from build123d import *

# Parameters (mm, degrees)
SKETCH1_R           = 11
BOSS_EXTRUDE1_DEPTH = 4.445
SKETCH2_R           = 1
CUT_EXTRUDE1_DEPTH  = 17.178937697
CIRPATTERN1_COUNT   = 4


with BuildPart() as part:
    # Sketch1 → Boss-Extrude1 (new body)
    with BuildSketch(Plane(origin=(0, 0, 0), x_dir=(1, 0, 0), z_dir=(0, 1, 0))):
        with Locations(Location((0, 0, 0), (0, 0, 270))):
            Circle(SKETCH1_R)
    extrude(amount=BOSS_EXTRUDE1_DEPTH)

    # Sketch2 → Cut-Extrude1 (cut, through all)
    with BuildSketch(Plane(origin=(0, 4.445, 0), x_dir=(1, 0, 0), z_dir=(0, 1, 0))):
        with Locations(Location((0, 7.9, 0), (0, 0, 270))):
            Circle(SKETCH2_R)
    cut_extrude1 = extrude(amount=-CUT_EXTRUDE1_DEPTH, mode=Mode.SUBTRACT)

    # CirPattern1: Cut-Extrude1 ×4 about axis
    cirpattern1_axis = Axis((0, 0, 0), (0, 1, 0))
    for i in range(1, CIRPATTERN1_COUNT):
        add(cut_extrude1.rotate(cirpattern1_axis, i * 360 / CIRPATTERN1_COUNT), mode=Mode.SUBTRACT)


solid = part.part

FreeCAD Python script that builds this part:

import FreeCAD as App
import Part
import Sketcher
from FreeCAD import Vector

doc = App.newDocument("Part")
body = doc.addObject("PartDesign::Body", "Body")

# Sketch on XZ plane
sketch1 = body.newObject("Sketcher::SketchObject", "Sketch")
sketch1.AttachmentSupport = (doc.getObject("XZ_Plane"), [""])
sketch1.MapMode = "FlatFace"
sketch1.addGeometry(Part.Circle(Vector(0, 0, 0), Vector(0, 0, 1), 11), False)
sketch1.addConstraint(Sketcher.Constraint("Coincident", 0, 3, -1, 1))
sketch1.addConstraint(Sketcher.Constraint("Diameter", 0, 22.0))
pad1 = body.newObject("PartDesign::Pad", "Pad")
pad1.Profile = sketch1
pad1.Length = 4.445
pad1.Reversed = True

# Sketch on XZ plane
sketch2 = body.newObject("Sketcher::SketchObject", "Sketch001")
sketch2.AttachmentSupport = (doc.getObject("XZ_Plane"), [""])
sketch2.MapMode = "FlatFace"
sketch2.AttachmentOffset = App.Placement(Vector(0, 0, -4.445), App.Rotation())
sketch2.addGeometry(Part.Circle(Vector(0, -7.9, 0), Vector(0, 0, 1), 1), False)
sketch2.addConstraint(Sketcher.Constraint("PointOnObject", 0, 3, -2))
sketch2.addConstraint(Sketcher.Constraint("Diameter", 0, 2.0))
sketch2.addConstraint(Sketcher.Constraint("DistanceY", 0, 3, -1, 1, 7.9))
pocket1 = body.newObject("PartDesign::Pocket", "Pocket")
pocket1.Profile = sketch2
pocket1.Type = "ThroughAll"
pocket1.Reversed = True
doc.recompute()

polarpattern = body.newObject("PartDesign::PolarPattern", "PolarPattern")
polarpattern.Originals = [pocket1]
polarpattern.Axis = (doc.getObject("Y_Axis"), [""])
polarpattern.Angle = 360
polarpattern.Occurrences = 4
body.Tip = polarpattern

doc.recompute()
